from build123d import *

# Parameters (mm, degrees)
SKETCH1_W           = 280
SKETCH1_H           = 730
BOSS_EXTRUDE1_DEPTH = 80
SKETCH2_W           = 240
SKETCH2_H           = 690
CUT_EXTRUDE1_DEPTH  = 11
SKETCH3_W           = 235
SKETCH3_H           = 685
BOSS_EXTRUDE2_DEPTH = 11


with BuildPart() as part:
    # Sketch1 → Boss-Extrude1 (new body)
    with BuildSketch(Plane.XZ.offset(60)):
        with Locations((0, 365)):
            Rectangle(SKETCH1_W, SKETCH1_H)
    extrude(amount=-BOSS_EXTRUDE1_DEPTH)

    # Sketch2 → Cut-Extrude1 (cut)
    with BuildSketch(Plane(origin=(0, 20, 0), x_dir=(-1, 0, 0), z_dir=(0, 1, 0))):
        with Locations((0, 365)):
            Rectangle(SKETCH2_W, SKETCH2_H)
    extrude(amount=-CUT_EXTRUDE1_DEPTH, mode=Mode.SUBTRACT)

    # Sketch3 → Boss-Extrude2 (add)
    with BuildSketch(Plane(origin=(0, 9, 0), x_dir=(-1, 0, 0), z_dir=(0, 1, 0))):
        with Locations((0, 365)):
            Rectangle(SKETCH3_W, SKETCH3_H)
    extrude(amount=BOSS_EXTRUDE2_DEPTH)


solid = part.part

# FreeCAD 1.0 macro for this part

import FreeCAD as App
import Part
import Sketcher

doc = App.newDocument("Part")
body = doc.addObject("PartDesign::Body", "Body")

sketch1 = doc.addObject("Sketcher::SketchObject", "Sketch")
body.addObject(sketch1)
sketch1.AttachmentSupport = (doc.XZ_Plane, [""])
sketch1.MapMode = "FlatFace"
sketch1.AttachmentOffset = App.Placement(App.Vector(0, 0, 60), App.Rotation())
sketch1.addGeometry([
    Part.LineSegment(App.Vector(-140, 730, 0), App.Vector(-140, 0, 0)),
    Part.LineSegment(App.Vector(-140, 0, 0), App.Vector(140, 0, 0)),
    Part.LineSegment(App.Vector(140, 0, 0), App.Vector(140, 730, 0)),
    Part.LineSegment(App.Vector(140, 730, 0), App.Vector(-140, 730, 0)),
], False)
sketch1.addConstraint([
    Sketcher.Constraint("Coincident", 0, 2, 1, 1),
    Sketcher.Constraint("Coincident", 1, 2, 2, 1),
    Sketcher.Constraint("Coincident", 2, 2, 3, 1),
    Sketcher.Constraint("Coincident", 3, 2, 0, 1),
    Sketcher.Constraint("Vertical", 0),
    Sketcher.Constraint("Horizontal", 1),
    Sketcher.Constraint("Vertical", 2),
    Sketcher.Constraint("Horizontal", 3),
    Sketcher.Constraint("Symmetric", 0, 2, 1, 2, -1, 1),
    Sketcher.Constraint("DistanceX", 1, 1, 1, 2, 280.0),
    Sketcher.Constraint("DistanceY", 0, 2, 0, 1, 730.0),
])
pad1 = doc.addObject("PartDesign::Pad", "Pad")
body.addObject(pad1)
pad1.Profile = sketch1
pad1.Length = 80
pad1.Reversed = True

sketch2 = doc.addObject("Sketcher::SketchObject", "Sketch001")
body.addObject(sketch2)
sketch2.AttachmentSupport = (doc.XZ_Plane, [""])
sketch2.MapMode = "FlatFace"
sketch2.AttachmentOffset = App.Placement(App.Vector(0, 0, -20), App.Rotation())
sketch2.addGeometry([
    Part.LineSegment(App.Vector(120, 710, 0), App.Vector(120, 20, 0)),
    Part.LineSegment(App.Vector(120, 20, 0), App.Vector(-120, 20, 0)),
    Part.LineSegment(App.Vector(-120, 20, 0), App.Vector(-120, 710, 0)),
    Part.LineSegment(App.Vector(-120, 710, 0), App.Vector(120, 710, 0)),
], False)
sketch2.addConstraint([
    Sketcher.Constraint("Coincident", 0, 2, 1, 1),
    Sketcher.Constraint("Coincident", 1, 2, 2, 1),
    Sketcher.Constraint("Coincident", 2, 2, 3, 1),
    Sketcher.Constraint("Coincident", 3, 2, 0, 1),
    Sketcher.Constraint("Vertical", 0),
    Sketcher.Constraint("Horizontal", 1),
    Sketcher.Constraint("Vertical", 2),
    Sketcher.Constraint("Horizontal", 3),
    Sketcher.Constraint("DistanceX", 1, 2, 1, 1, 240.0),
    Sketcher.Constraint("DistanceY", 0, 2, 0, 1, 690.0),
    Sketcher.Constraint("DistanceX", -1, 1, 0, 2, 120.0),
    Sketcher.Constraint("DistanceY", -1, 1, 0, 2, 20.0),
])
pocket1 = doc.addObject("PartDesign::Pocket", "Pocket")
body.addObject(pocket1)
pocket1.Profile = sketch2
pocket1.Length = 11
pocket1.Reversed = True

sketch3 = doc.addObject("Sketcher::SketchObject", "Sketch002")
body.addObject(sketch3)
sketch3.AttachmentSupport = (doc.XZ_Plane, [""])
sketch3.MapMode = "FlatFace"
sketch3.AttachmentOffset = App.Placement(App.Vector(0, 0, -9), App.Rotation())
sketch3.addGeometry([
    Part.LineSegment(App.Vector(118, 708, 0), App.Vector(118, 22, 0)),
    Part.LineSegment(App.Vector(118, 22, 0), App.Vector(-118, 22, 0)),
    Part.LineSegment(App.Vector(-118, 22, 0), App.Vector(-118, 708, 0)),
    Part.LineSegment(App.Vector(-118, 708, 0), App.Vector(118, 708, 0)),
], False)
sketch3.addConstraint([
    Sketcher.Constraint("Coincident", 0, 2, 1, 1),
    Sketcher.Constraint("Coincident", 1, 2, 2, 1),
    Sketcher.Constraint("Coincident", 2, 2, 3, 1),
    Sketcher.Constraint("Coincident", 3, 2, 0, 1),
    Sketcher.Constraint("Vertical", 0),
    Sketcher.Constraint("Horizontal", 1),
    Sketcher.Constraint("Vertical", 2),
    Sketcher.Constraint("Horizontal", 3),
    Sketcher.Constraint("DistanceX", 1, 2, 1, 1, 235.0),
    Sketcher.Constraint("DistanceY", 0, 2, 0, 1, 685.0),
    Sketcher.Constraint("DistanceX", -1, 1, 0, 2, 117.5),
    Sketcher.Constraint("DistanceY", -1, 1, 0, 2, 22.5),
])
pad2 = doc.addObject("PartDesign::Pad", "Pad001")
body.addObject(pad2)
pad2.Profile = sketch3
pad2.Length = 11
pad2.Reversed = True

doc.recompute()
